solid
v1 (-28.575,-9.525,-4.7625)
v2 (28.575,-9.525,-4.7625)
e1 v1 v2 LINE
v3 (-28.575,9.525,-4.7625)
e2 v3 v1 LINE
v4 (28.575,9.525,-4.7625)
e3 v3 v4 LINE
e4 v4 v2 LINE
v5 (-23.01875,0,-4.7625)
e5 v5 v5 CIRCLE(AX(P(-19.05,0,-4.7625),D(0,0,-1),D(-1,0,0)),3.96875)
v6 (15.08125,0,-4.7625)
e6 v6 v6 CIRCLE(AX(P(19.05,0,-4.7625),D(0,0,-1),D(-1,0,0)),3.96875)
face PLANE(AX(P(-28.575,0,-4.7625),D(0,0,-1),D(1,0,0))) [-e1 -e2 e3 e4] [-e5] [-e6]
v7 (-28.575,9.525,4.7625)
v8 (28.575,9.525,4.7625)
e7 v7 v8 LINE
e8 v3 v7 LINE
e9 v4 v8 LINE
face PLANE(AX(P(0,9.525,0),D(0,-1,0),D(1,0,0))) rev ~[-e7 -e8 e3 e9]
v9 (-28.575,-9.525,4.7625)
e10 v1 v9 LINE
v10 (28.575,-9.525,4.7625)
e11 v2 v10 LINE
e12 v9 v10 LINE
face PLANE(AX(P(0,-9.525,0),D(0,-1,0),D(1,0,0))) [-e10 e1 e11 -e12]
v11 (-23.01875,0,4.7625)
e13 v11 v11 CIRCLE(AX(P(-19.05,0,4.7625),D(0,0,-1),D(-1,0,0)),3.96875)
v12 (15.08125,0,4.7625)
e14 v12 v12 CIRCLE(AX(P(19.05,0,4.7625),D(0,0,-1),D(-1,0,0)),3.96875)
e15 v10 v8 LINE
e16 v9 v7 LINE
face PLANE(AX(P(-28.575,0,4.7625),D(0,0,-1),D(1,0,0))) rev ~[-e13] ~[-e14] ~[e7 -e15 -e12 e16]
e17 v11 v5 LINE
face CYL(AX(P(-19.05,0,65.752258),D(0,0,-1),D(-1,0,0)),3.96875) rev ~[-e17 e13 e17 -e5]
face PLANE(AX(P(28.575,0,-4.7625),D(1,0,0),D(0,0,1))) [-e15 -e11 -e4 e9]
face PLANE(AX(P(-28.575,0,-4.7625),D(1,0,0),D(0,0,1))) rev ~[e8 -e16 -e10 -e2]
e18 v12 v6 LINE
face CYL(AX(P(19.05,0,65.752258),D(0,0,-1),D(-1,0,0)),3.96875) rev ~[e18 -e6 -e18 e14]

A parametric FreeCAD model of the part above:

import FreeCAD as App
import Part
import Sketcher

V = App.Vector
Q = App.Units.Quantity


def add_polygon(sketch, points):
    """Adds a closed chain of lines whose ends are joined by coincident constraints."""
    first, n = sketch.GeometryCount, len(points)
    for a, b in zip(points, points[1:] + points[:1]):
        sketch.addGeometry(Part.LineSegment(App.Vector(*a, 0), App.Vector(*b, 0)), False)
    for i in range(n):
        sketch.addConstraint(Sketcher.Constraint("Coincident", first + i, 2, first + (i + 1) % n, 1))

doc = App.newDocument("Part")
params = doc.addObject("Spreadsheet::Sheet", "Params")
for row, (alias, value) in enumerate([
    ("sketch1_width", "2.25 in"),
    ("sketch1_height", "0.375 in"),
    ("pad1_length", "0.75 in"),
    ("sketch2_diameter", "0.3125 in"),
    ("hole_diameter", "0.3125 in"),
], start=1):
    params.set(f"A{row}", alias)
    params.set(f"B{row}", "=" + value)
    params.setAlias(f"B{row}", alias)

body = doc.addObject("PartDesign::Body", "Body")

# Sketch on XZ plane
sketch1 = doc.addObject("Sketcher::SketchObject", "Sketch")
body.addObject(sketch1)
sketch1.AttachmentSupport = (doc.XZ_Plane, [""])
sketch1.MapMode = "FlatFace"
add_polygon(sketch1, [(-28.575, 4.7625), (-28.575, -4.7625), (28.575, -4.7625), (28.575, 4.7625)])  # lines 0-3
sketch1.addConstraint([
    Sketcher.Constraint("Vertical", 0),
    Sketcher.Constraint("Horizontal", 1),
    Sketcher.Constraint("Vertical", 2),
    Sketcher.Constraint("Horizontal", 3),
    Sketcher.Constraint("Symmetric", 0, 2, 2, 2, -1, 1),
    Sketcher.Constraint("DistanceX", 1, 1, 1, 2, Q("2.25 in")),
    Sketcher.Constraint("DistanceY", 0, 2, 0, 1, Q("0.375 in")),
])
sketch1.setExpression("Constraints[9]", "Params.sketch1_width")
sketch1.setExpression("Constraints[10]", "Params.sketch1_height")
pad1 = doc.addObject("PartDesign::Pad", "Pad")
body.addObject(pad1)
pad1.Profile = sketch1
pad1.setExpression("Length", "Params.pad1_length")
pad1.Midplane = True

# Sketch on XY plane
sketch2 = doc.addObject("Sketcher::SketchObject", "Sketch001")
body.addObject(sketch2)
sketch2.AttachmentSupport = (doc.XY_Plane, [""])
sketch2.MapMode = "FlatFace"
sketch2.AttachmentOffset = App.Placement(V(0, 0, 0.1875 * 25.4), App.Rotation())
sketch2.addGeometry([
    Part.Circle(V(19.05, 0, 0), V(0, 0, 1), 3.96875),
    Part.Circle(V(-19.05, 0, 0), V(0, 0, 1), 3.96875),
], False)
sketch2.addConstraint([
    Sketcher.Constraint("Equal", 0, 1),
    Sketcher.Constraint("Symmetric", 0, 3, 1, 3, -1, 1),
    Sketcher.Constraint("PointOnObject", 0, 3, -1),
    Sketcher.Constraint("Diameter", 0, Q("0.3125 in")),
    Sketcher.Constraint("DistanceX", 1, 3, 0, 3, Q("1.5 in")),
])
sketch2.setExpression("Constraints[3]", "Params.sketch2_diameter")
doc.recompute()
hole = doc.addObject("PartDesign::Hole", "Hole")
body.addObject(hole)
hole.Profile = sketch2
hole.ThreadType = "None"
hole.setExpression("Diameter", "Params.hole_diameter")
hole.DepthType = "ThroughAll"

doc.recompute()
